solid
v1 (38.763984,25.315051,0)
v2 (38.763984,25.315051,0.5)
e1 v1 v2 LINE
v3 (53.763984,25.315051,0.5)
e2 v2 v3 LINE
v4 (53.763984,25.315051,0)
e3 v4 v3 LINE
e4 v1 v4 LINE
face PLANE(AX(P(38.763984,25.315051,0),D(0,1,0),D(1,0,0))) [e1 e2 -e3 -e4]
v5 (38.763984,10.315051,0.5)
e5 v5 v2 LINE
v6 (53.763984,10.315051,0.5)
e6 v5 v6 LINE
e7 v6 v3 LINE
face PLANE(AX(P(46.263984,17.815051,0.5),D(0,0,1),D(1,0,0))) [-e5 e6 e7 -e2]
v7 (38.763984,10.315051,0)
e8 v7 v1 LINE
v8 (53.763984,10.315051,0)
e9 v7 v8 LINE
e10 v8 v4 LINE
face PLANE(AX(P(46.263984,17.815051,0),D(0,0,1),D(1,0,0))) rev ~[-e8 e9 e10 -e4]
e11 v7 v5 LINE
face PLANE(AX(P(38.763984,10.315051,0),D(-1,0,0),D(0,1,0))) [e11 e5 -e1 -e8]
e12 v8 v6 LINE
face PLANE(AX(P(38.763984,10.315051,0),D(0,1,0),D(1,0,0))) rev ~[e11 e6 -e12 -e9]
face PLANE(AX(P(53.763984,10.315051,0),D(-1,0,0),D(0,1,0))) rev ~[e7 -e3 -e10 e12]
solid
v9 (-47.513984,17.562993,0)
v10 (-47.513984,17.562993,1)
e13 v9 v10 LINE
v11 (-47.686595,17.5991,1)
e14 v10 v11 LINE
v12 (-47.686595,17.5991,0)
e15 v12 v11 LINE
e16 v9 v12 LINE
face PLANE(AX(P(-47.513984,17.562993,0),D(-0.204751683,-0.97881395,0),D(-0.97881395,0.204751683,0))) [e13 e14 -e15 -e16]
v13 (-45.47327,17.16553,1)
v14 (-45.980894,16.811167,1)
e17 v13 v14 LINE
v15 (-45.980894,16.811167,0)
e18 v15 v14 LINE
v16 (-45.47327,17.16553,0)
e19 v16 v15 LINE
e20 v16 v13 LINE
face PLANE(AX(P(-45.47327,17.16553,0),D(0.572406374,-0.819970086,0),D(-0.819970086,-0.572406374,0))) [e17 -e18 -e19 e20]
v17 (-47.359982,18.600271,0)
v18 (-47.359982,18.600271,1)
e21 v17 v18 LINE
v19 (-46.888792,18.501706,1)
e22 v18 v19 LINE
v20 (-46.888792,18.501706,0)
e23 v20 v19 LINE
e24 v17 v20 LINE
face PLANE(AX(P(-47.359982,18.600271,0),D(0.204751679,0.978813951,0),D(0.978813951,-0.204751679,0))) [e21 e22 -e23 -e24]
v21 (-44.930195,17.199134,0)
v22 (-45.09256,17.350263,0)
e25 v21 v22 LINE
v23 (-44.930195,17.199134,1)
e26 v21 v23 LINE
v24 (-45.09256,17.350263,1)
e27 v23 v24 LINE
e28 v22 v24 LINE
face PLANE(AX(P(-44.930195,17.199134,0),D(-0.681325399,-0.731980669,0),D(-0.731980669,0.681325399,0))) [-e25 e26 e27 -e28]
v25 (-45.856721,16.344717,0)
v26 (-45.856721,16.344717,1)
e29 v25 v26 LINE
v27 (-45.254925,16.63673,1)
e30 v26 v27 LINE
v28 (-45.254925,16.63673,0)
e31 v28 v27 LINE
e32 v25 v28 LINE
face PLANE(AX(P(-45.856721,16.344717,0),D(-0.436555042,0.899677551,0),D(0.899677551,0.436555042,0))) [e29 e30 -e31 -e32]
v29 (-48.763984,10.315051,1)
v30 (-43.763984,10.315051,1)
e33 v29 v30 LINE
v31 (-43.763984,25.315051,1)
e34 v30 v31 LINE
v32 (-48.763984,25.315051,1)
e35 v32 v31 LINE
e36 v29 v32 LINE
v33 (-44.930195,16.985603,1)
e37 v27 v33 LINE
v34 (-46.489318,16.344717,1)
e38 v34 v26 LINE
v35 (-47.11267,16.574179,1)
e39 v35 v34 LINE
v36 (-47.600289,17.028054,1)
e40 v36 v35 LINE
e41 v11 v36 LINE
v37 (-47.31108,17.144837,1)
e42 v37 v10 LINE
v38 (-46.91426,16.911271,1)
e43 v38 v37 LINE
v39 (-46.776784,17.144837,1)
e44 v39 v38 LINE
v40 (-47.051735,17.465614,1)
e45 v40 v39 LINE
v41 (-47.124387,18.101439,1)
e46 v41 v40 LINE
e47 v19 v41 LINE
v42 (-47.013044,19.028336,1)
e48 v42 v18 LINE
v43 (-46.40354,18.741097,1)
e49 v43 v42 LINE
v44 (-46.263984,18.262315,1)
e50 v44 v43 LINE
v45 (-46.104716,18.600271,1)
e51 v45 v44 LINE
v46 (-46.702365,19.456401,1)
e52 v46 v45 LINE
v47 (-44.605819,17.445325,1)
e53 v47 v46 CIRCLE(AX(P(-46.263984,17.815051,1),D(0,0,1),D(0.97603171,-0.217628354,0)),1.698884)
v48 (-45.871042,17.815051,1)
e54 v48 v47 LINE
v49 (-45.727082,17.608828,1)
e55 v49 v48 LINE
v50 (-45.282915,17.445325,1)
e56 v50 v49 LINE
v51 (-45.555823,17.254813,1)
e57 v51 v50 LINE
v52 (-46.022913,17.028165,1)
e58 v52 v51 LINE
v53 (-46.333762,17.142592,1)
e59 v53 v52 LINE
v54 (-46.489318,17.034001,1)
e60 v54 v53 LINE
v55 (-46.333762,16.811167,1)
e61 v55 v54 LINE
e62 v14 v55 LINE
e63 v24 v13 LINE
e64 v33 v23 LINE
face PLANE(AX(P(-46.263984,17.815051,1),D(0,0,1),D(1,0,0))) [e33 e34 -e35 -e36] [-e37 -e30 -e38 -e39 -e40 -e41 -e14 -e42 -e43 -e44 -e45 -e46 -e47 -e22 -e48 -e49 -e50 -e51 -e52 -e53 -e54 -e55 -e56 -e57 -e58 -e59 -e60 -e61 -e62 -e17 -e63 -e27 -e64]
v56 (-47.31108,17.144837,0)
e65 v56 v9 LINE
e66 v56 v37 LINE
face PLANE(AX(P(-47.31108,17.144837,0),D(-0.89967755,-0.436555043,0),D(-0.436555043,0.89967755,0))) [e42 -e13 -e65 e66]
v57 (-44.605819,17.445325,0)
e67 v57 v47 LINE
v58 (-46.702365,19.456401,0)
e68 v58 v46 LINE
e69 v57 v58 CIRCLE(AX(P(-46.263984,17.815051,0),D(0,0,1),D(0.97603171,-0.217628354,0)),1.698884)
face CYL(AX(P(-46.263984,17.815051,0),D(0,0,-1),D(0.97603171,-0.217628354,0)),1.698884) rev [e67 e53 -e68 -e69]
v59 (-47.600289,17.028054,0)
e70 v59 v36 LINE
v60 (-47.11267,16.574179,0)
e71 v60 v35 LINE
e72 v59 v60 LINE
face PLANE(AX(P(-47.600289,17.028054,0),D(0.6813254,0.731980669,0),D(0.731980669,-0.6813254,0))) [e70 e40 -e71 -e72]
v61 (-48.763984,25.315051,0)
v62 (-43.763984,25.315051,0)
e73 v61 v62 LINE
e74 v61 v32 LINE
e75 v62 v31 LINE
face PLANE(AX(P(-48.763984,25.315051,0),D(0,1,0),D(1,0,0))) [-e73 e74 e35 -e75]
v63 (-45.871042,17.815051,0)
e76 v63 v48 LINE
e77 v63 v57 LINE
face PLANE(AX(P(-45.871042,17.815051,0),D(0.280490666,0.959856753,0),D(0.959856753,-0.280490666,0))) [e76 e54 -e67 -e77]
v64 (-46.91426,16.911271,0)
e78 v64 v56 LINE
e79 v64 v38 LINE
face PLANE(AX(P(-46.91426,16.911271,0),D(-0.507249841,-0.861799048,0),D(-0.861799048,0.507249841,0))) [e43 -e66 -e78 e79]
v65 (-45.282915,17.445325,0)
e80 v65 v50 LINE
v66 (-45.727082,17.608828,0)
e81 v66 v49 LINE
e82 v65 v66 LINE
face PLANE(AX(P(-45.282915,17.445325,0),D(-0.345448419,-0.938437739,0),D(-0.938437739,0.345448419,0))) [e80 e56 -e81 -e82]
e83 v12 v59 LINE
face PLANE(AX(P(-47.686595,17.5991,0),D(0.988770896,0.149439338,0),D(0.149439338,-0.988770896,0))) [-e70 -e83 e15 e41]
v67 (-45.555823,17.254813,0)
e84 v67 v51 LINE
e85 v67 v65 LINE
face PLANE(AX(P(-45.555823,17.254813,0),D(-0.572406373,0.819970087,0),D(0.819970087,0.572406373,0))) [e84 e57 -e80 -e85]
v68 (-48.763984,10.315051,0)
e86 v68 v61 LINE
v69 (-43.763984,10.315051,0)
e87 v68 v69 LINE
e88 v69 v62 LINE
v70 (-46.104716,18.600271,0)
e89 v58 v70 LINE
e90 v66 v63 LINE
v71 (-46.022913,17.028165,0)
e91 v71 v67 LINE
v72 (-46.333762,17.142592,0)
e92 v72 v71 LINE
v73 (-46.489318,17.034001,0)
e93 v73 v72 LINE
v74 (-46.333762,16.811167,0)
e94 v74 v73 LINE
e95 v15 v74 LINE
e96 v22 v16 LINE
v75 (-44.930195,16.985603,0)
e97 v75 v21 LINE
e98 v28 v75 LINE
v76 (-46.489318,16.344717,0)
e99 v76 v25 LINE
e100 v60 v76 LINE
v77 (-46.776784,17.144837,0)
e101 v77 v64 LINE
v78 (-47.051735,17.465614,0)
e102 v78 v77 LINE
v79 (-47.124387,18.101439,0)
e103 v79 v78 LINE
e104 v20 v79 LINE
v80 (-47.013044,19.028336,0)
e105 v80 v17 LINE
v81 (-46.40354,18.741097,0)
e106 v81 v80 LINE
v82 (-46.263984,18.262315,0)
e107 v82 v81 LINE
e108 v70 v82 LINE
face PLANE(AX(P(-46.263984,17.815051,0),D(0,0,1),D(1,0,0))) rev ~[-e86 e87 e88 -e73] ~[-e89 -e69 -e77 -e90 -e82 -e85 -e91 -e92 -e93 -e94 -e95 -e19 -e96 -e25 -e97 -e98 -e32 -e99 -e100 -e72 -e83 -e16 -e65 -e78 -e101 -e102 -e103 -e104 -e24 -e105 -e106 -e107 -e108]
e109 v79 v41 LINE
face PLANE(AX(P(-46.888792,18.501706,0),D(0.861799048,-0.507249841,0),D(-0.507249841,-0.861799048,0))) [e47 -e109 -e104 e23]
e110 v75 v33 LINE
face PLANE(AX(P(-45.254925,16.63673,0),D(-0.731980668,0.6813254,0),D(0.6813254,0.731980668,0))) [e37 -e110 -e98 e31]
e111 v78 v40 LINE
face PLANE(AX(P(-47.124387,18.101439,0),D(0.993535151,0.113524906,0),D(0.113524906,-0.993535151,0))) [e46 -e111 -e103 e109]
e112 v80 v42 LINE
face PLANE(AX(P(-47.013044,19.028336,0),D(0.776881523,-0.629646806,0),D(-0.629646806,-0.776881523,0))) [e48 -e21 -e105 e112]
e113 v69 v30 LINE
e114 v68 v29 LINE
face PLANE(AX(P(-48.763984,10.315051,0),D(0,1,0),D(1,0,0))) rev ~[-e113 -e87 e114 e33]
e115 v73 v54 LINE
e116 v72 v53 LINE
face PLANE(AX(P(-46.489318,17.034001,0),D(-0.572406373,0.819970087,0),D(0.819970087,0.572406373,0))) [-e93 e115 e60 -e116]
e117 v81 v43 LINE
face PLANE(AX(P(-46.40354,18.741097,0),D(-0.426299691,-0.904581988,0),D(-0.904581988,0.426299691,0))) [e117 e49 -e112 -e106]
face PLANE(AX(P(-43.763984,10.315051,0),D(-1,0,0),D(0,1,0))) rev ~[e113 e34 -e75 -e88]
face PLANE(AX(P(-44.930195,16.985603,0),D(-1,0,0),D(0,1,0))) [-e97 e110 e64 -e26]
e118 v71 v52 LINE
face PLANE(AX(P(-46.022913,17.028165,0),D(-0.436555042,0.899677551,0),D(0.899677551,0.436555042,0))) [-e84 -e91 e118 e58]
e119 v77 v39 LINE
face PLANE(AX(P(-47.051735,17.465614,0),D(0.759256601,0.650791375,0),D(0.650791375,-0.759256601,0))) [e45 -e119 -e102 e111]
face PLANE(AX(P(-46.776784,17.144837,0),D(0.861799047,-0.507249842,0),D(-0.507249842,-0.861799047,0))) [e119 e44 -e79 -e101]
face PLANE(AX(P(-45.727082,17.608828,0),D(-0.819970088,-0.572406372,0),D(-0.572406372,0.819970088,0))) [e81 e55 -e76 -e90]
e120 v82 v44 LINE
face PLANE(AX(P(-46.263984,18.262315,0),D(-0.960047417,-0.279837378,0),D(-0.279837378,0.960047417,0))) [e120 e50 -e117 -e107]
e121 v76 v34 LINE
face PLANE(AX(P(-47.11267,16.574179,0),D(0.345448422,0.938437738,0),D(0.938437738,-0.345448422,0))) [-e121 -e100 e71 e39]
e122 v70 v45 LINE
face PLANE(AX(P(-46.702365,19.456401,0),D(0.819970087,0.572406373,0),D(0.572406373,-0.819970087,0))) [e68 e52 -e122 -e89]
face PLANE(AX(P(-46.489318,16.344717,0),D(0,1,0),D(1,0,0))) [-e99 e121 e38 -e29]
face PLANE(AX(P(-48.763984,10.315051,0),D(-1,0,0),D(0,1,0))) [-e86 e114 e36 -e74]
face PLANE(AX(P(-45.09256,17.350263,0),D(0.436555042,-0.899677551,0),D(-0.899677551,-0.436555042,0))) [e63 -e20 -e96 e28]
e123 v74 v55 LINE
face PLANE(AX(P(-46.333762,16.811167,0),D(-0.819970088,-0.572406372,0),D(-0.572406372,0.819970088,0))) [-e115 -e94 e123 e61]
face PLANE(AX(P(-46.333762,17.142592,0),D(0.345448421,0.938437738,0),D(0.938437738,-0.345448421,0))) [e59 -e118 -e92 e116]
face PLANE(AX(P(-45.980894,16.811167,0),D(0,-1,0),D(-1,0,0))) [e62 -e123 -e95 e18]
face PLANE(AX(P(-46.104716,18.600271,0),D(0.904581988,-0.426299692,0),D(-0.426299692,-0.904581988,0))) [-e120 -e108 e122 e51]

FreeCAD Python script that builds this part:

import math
import FreeCAD as App
import Part
import Sketcher
Q = App.Units.Quantity


def add_polygon(sketch, points):
    """Adds a closed chain of lines whose ends are joined by coincident constraints."""
    first, n = sketch.GeometryCount, len(points)
    for a, b in zip(points, points[1:] + points[:1]):
        sketch.addGeometry(Part.LineSegment(App.Vector(*a, 0), App.Vector(*b, 0)), False)
    for i in range(n):
        sketch.addConstraint(Sketcher.Constraint("Coincident", first + i, 2, first + (i + 1) % n, 1))

doc = App.newDocument("Part")
body = doc.addObject("PartDesign::Body", "Body")

sketch1 = body.newObject("Sketcher::SketchObject", "Sketch")
sketch1.AttachmentSupport = (doc.getObject("XY_Plane"), [""])
sketch1.MapMode = "FlatFace"
add_polygon(sketch1, [(38.763984, 25.315051), (38.763984, 10.315051), (53.763984, 10.315051), (53.763984, 25.315051)])
sketch1.addConstraint([
    Sketcher.Constraint("Vertical", 0),
    Sketcher.Constraint("Horizontal", 1),
    Sketcher.Constraint("Vertical", 2),
    Sketcher.Constraint("Horizontal", 3),
    Sketcher.Constraint("Equal", 3, 0),
    Sketcher.Constraint("DistanceX", 1, 1, 1, 2, Q("15 mm")),
    Sketcher.Constraint("DistanceY", -1, 1, 0, 2, Q("10.315051 mm")),
    Sketcher.Constraint("DistanceX", -1, 1, 0, 2, Q("38.763984 mm")),
])
pad1 = body.newObject("PartDesign::Pad", "Pad")
pad1.Profile = sketch1
pad1.Length = 0.5
body2 = doc.addObject("PartDesign::Body", "Body001")

sketch2 = body2.newObject("Sketcher::SketchObject", "Sketch001")
sketch2.AttachmentSupport = (doc.getObject("XY_Plane001"), [""])
sketch2.MapMode = "FlatFace"
add_polygon(sketch2, [(-48.763984, 25.315051), (-48.763984, 10.315051), (-43.763984, 10.315051), (-43.763984, 25.315051)])
sketch2.addGeometry(Part.LineSegment(App.Vector(-46.104716, 18.600271, 0), App.Vector(-46.702365, 19.456401, 0)), False)
sketch2.addGeometry(Part.ArcOfCircle(Part.Circle(App.Vector(-46.263984, 17.815051, 0), App.Vector(0, 0, 1), 1.698884), math.radians(-12.569773), math.radians(104.953835)), False)
sketch2.addGeometry(Part.LineSegment(App.Vector(-44.605819, 17.445325, 0), App.Vector(-45.871042, 17.815051, 0)), False)
sketch2.addGeometry(Part.LineSegment(App.Vector(-45.871042, 17.815051, 0), App.Vector(-45.727082, 17.608828, 0)), False)
sketch2.addGeometry(Part.LineSegment(App.Vector(-45.727082, 17.608828, 0), App.Vector(-45.282915, 17.445325, 0)), False)
sketch2.addGeometry(Part.LineSegment(App.Vector(-45.282915, 17.445325, 0), App.Vector(-45.555823, 17.254813, 0)), False)
sketch2.addGeometry(Part.LineSegment(App.Vector(-45.555823, 17.254813, 0), App.Vector(-46.022913, 17.028165, 0)), False)
sketch2.addGeometry(Part.LineSegment(App.Vector(-46.022913, 17.028165, 0), App.Vector(-46.333762, 17.142592, 0)), False)
sketch2.addGeometry(Part.LineSegment(App.Vector(-46.333762, 17.142592, 0), App.Vector(-46.489318, 17.034001, 0)), False)
sketch2.addGeometry(Part.LineSegment(App.Vector(-46.489318, 17.034001, 0), App.Vector(-46.333762, 16.811167, 0)), False)
sketch2.addGeometry(Part.LineSegment(App.Vector(-46.333762, 16.811167, 0), App.Vector(-45.980894, 16.811167, 0)), False)
sketch2.addGeometry(Part.LineSegment(App.Vector(-45.980894, 16.811167, 0), App.Vector(-45.47327, 17.16553, 0)), False)
sketch2.addGeometry(Part.LineSegment(App.Vector(-45.47327, 17.16553, 0), App.Vector(-45.09256, 17.350263, 0)), False)
sketch2.addGeometry(Part.LineSegment(App.Vector(-45.09256, 17.350263, 0), App.Vector(-44.930195, 17.199134, 0)), False)
sketch2.addGeometry(Part.LineSegment(App.Vector(-44.930195, 17.199134, 0), App.Vector(-44.930195, 16.985603, 0)), False)
sketch2.addGeometry(Part.LineSegment(App.Vector(-44.930195, 16.985603, 0), App.Vector(-45.254925, 16.63673, 0)), False)
sketch2.addGeometry(Part.LineSegment(App.Vector(-45.254925, 16.63673, 0), App.Vector(-45.856721, 16.344717, 0)), False)
sketch2.addGeometry(Part.LineSegment(App.Vector(-45.856721, 16.344717, 0), App.Vector(-46.489318, 16.344717, 0)), False)
sketch2.addGeometry(Part.LineSegment(App.Vector(-46.489318, 16.344717, 0), App.Vector(-47.11267, 16.574179, 0)), False)
sketch2.addGeometry(Part.LineSegment(App.Vector(-47.11267, 16.574179, 0), App.Vector(-47.600289, 17.028054, 0)), False)
sketch2.addGeometry(Part.LineSegment(App.Vector(-47.600289, 17.028054, 0), App.Vector(-47.686595, 17.5991, 0)), False)
sketch2.addGeometry(Part.LineSegment(App.Vector(-47.686595, 17.5991, 0), App.Vector(-47.513984, 17.562993, 0)), False)
sketch2.addGeometry(Part.LineSegment(App.Vector(-47.513984, 17.562993, 0), App.Vector(-47.31108, 17.144837, 0)), False)
sketch2.addGeometry(Part.LineSegment(App.Vector(-47.31108, 17.144837, 0), App.Vector(-46.91426, 16.911271, 0)), False)
sketch2.addGeometry(Part.LineSegment(App.Vector(-46.91426, 16.911271, 0), App.Vector(-46.776784, 17.144837, 0)), False)
sketch2.addGeometry(Part.LineSegment(App.Vector(-46.776784, 17.144837, 0), App.Vector(-47.051735, 17.465614, 0)), False)
sketch2.addGeometry(Part.LineSegment(App.Vector(-47.051735, 17.465614, 0), App.Vector(-47.124387, 18.101439, 0)), False)
sketch2.addGeometry(Part.LineSegment(App.Vector(-47.124387, 18.101439, 0), App.Vector(-46.888792, 18.501706, 0)), False)
sketch2.addGeometry(Part.LineSegment(App.Vector(-46.888792, 18.501706, 0), App.Vector(-47.359982, 18.600271, 0)), False)
sketch2.addGeometry(Part.LineSegment(App.Vector(-47.359982, 18.600271, 0), App.Vector(-47.013044, 19.028336, 0)), False)
sketch2.addGeometry(Part.LineSegment(App.Vector(-47.013044, 19.028336, 0), App.Vector(-46.40354, 18.741097, 0)), False)
sketch2.addGeometry(Part.LineSegment(App.Vector(-46.40354, 18.741097, 0), App.Vector(-46.263984, 18.262315, 0)), False)
sketch2.addGeometry(Part.LineSegment(App.Vector(-46.263984, 18.262315, 0), App.Vector(-46.104716, 18.600271, 0)), False)
sketch2.addConstraint([
    Sketcher.Constraint("Coincident", 4, 2, 5, 2),
    Sketcher.Constraint("Coincident", 5, 1, 6, 1),
    Sketcher.Constraint("Coincident", 6, 2, 7, 1),
    Sketcher.Constraint("Coincident", 7, 2, 8, 1),
    Sketcher.Constraint("Coincident", 8, 2, 9, 1),
    Sketcher.Constraint("Coincident", 9, 2, 10, 1),
    Sketcher.Constraint("Coincident", 10, 2, 11, 1),
    Sketcher.Constraint("Coincident", 11, 2, 12, 1),
    Sketcher.Constraint("Coincident", 12, 2, 13, 1),
    Sketcher.Constraint("Coincident", 13, 2, 14, 1),
    Sketcher.Constraint("Coincident", 14, 2, 15, 1),
    Sketcher.Constraint("Coincident", 15, 2, 16, 1),
    Sketcher.Constraint("Coincident", 16, 2, 17, 1),
    Sketcher.Constraint("Coincident", 17, 2, 18, 1),
    Sketcher.Constraint("Coincident", 18, 2, 19, 1),
    Sketcher.Constraint("Coincident", 19, 2, 20, 1),
    Sketcher.Constraint("Coincident", 20, 2, 21, 1),
    Sketcher.Constraint("Coincident", 21, 2, 22, 1),
    Sketcher.Constraint("Coincident", 22, 2, 23, 1),
    Sketcher.Constraint("Coincident", 23, 2, 24, 1),
    Sketcher.Constraint("Coincident", 24, 2, 25, 1),
    Sketcher.Constraint("Coincident", 25, 2, 26, 1),
    Sketcher.Constraint("Coincident", 26, 2, 27, 1),
    Sketcher.Constraint("Coincident", 27, 2, 28, 1),
    Sketcher.Constraint("Coincident", 28, 2, 29, 1),
    Sketcher.Constraint("Coincident", 29, 2, 30, 1),
    Sketcher.Constraint("Coincident", 30, 2, 31, 1),
    Sketcher.Constraint("Coincident", 31, 2, 32, 1),
    Sketcher.Constraint("Coincident", 32, 2, 33, 1),
    Sketcher.Constraint("Coincident", 33, 2, 34, 1),
    Sketcher.Constraint("Coincident", 34, 2, 35, 1),
    Sketcher.Constraint("Coincident", 35, 2, 36, 1),
    Sketcher.Constraint("Coincident", 36, 2, 4, 1),
    Sketcher.Constraint("Vertical", 0),
    Sketcher.Constraint("Horizontal", 1),
    Sketcher.Constraint("Vertical", 2),
    Sketcher.Constraint("Horizontal", 3),
    Sketcher.Constraint("Horizontal", 14),
    Sketcher.Constraint("Vertical", 18),
    Sketcher.Constraint("Horizontal", 21),
    Sketcher.Constraint("DistanceX", 1, 1, 1, 2, Q("5 mm")),
    Sketcher.Constraint("DistanceY", 0, 2, 0, 1, Q("15 mm")),
    Sketcher.Constraint("DistanceX", 0, 2, 5, 3, Q("2.5 mm")),
    Sketcher.Constraint("DistanceY", 0, 2, 5, 3, Q("7.5 mm")),
    Sketcher.Constraint("DistanceY", 6, 2, 2, 2, Q("7.5 mm")),
    Sketcher.Constraint("DistanceY", -1, 1, 12, 2, Q("17.034001 mm")),
    Sketcher.Constraint("Radius", 5, Q("1.698884 mm")),
    Sketcher.Constraint("DistanceY", 13, 2, 10, 2, Q("0.216998 mm")),
    Sketcher.Constraint("Distance", 4, Q("1.044099 mm")),
    Sketcher.Constraint("Distance", 7, Q("0.251501 mm")),
    Sketcher.Constraint("Distance", 20, Q("0.668902 mm")),
    Sketcher.Constraint("DistanceX", 14, 1, 14, 2, Q("0.352868 mm")),
    Sketcher.Constraint("DistanceY", 18, 2, 18, 1, Q("0.213531 mm")),
    Sketcher.Constraint("DistanceY", -1, 1, 4, 2, Q("19.456401 mm")),
    Sketcher.Constraint("DistanceY", -1, 1, 24, 2, Q("17.5991 mm")),
    Sketcher.Constraint("DistanceX", 5, 3, 7, 2, Q("0.536902 mm")),
    Sketcher.Constraint("DistanceY", 19, 2, 15, 2, Q("0.5288 mm")),
    Sketcher.Constraint("DistanceY", 11, 2, 25, 2, Q("0.420401 mm")),
    Sketcher.Constraint("DistanceY", 26, 2, 30, 2, Q("0.956602 mm")),
    Sketcher.Constraint("DistanceX", 35, 2, 7, 2, Q("0.536902 mm")),
    Sketcher.Constraint("Distance", 11, Q("0.331241 mm")),
    Sketcher.Constraint("Distance", 12, Q("0.18971 mm")),
    Sketcher.Constraint("Distance", 13, Q("0.271759 mm")),
    Sketcher.Constraint("Distance", 24, Q("0.577531 mm")),
    Sketcher.Constraint("Distance", 28, Q("0.271022 mm")),
    Sketcher.Constraint("Distance", 32, Q("0.481388 mm")),
    Sketcher.Constraint("DistanceX", 21, 2, 21, 1, Q("0.632597 mm")),
    Sketcher.Constraint("DistanceY", -1, 1, 5, 3, Q("17.815051 mm")),
    Sketcher.Constraint("DistanceX", 5, 1, -1, 1, Q("44.605819 mm")),
    Sketcher.Constraint("DistanceX", 7, 2, -1, 1, Q("45.727082 mm")),
    Sketcher.Constraint("DistanceY", -1, 1, 11, 2, Q("17.142592 mm")),
    Sketcher.Constraint("DistanceX", 12, 2, -1, 1, Q("46.489318 mm")),
    Sketcher.Constraint("DistanceX", 15, 2, -1, 1, Q("45.47327 mm")),
    Sketcher.Constraint("DistanceY", -1, 1, 15, 2, Q("17.16553 mm")),
    Sketcher.Constraint("DistanceX", 16, 2, -1, 1, Q("45.09256 mm")),
    Sketcher.Constraint("DistanceX", 20, 2, -1, 1, Q("45.856721 mm")),
    Sketcher.Constraint("DistanceX", 22, 2, -1, 1, Q("47.11267 mm")),
    Sketcher.Constraint("DistanceY", -1, 1, 22, 2, Q("16.574179 mm")),
    Sketcher.Constraint("DistanceX", 23, 2, -1, 1, Q("47.600289 mm")),
    Sketcher.Constraint("DistanceX", 26, 2, -1, 1, Q("47.31108 mm")),
    Sketcher.Constraint("DistanceX", 27, 2, -1, 1, Q("46.91426 mm")),
    Sketcher.Constraint("DistanceY", -1, 1, 27, 2, Q("16.911271 mm")),
    Sketcher.Constraint("DistanceY", -1, 1, 30, 2, Q("18.101439 mm")),
    Sketcher.Constraint("DistanceX", 32, 2, -1, 1, Q("47.359982 mm")),
    Sketcher.Constraint("DistanceY", -1, 1, 32, 2, Q("18.600271 mm")),
    Sketcher.Constraint("DistanceX", 34, 2, -1, 1, Q("46.40354 mm")),
    Sketcher.Constraint("DistanceY", -1, 1, 36, 2, Q("18.600271 mm")),
    Sketcher.Constraint("DistanceX", 5, 3, 6, 2, Q("0.392941 mm")),
    Sketcher.Constraint("DistanceX", 5, 3, 8, 2, Q("0.981069 mm")),
    Sketcher.Constraint("DistanceX", 9, 2, 8, 2, Q("0.272908 mm")),
    Sketcher.Constraint("DistanceX", 10, 2, 9, 2, Q("0.467089 mm")),
    Sketcher.Constraint("DistanceY", 10, 2, 9, 2, Q("0.226648 mm")),
    Sketcher.Constraint("DistanceY", 10, 2, 8, 2, Q("0.417161 mm")),
    Sketcher.Constraint("DistanceY", 9, 2, 16, 2, Q("0.09545 mm")),
    Sketcher.Constraint("DistanceY", 17, 2, 16, 2, Q("0.151129 mm")),
    Sketcher.Constraint("DistanceX", 8, 2, 17, 2, Q("0.35272 mm")),
    Sketcher.Constraint("DistanceX", 19, 2, 18, 2, Q("0.32473 mm")),
    Sketcher.Constraint("DistanceX", 24, 2, 5, 3, Q("1.422612 mm")),
    Sketcher.Constraint("DistanceX", 24, 2, 25, 2, Q("0.172612 mm")),
    Sketcher.Constraint("DistanceX", 28, 2, 11, 2, Q("0.443022 mm")),
    Sketcher.Constraint("DistanceX", 29, 2, 28, 2, Q("0.274951 mm")),
    Sketcher.Constraint("DistanceY", 29, 2, 25, 2, Q("0.097379 mm")),
    Sketcher.Constraint("DistanceX", 30, 2, 29, 2, Q("0.072652 mm")),
    Sketcher.Constraint("DistanceX", 31, 2, 5, 3, Q("0.624809 mm")),
    Sketcher.Constraint("DistanceX", 33, 2, 4, 2, Q("0.310679 mm")),
    Sketcher.Constraint("DistanceY", 31, 2, 33, 2, Q("0.52663 mm")),
    Sketcher.Constraint("DistanceY", 31, 2, 34, 2, Q("0.239391 mm")),
    Sketcher.Constraint("DistanceY", 35, 2, 31, 2, Q("0.239391 mm")),
])
pad2 = body2.newObject("PartDesign::Pad", "Pad001")
pad2.Profile = sketch2
pad2.Length = 1

doc.recompute()
